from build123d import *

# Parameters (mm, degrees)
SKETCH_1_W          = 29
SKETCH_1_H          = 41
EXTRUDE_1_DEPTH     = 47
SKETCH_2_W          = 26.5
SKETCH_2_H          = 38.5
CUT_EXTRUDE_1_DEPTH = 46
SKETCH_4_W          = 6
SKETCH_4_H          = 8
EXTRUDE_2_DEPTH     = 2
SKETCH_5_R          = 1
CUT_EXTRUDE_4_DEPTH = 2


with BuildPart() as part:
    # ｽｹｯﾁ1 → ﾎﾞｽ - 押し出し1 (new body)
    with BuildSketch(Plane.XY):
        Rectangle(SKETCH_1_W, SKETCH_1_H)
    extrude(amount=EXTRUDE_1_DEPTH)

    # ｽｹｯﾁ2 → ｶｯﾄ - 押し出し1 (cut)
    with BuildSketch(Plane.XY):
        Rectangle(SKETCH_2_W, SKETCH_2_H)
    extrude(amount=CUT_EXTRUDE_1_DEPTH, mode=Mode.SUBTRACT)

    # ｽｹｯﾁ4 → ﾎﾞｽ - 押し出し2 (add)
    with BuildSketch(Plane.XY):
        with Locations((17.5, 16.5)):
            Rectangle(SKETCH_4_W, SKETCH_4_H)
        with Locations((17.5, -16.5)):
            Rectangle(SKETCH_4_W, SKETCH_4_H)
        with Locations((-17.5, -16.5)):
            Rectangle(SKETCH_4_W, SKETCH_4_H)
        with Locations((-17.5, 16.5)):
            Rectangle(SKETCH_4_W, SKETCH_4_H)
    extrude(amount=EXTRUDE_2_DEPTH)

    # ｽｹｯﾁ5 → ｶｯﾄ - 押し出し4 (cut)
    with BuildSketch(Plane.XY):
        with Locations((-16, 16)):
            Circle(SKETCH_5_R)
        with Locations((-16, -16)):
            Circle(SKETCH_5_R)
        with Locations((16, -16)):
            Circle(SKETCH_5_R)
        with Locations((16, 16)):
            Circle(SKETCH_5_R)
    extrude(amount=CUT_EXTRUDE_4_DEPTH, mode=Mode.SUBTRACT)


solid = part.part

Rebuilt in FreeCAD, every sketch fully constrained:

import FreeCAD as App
import Part
import Sketcher
Q = App.Units.Quantity


def add_polygon(sketch, points):
    """Adds a closed chain of lines whose ends are joined by coincident constraints."""
    first, n = sketch.GeometryCount, len(points)
    for a, b in zip(points, points[1:] + points[:1]):
        sketch.addGeometry(Part.LineSegment(App.Vector(*a, 0), App.Vector(*b, 0)), False)
    for i in range(n):
        sketch.addConstraint(Sketcher.Constraint("Coincident", first + i, 2, first + (i + 1) % n, 1))

doc = App.newDocument("Part")
body = doc.addObject("PartDesign::Body", "Body")

sketch1 = body.newObject("Sketcher::SketchObject", "Sketch")
sketch1.AttachmentSupport = (doc.getObject("XY_Plane"), [""])
sketch1.MapMode = "FlatFace"
add_polygon(sketch1, [(-14, 20), (-14, -20), (14, -20), (14, 20)])
sketch1.addConstraint(Sketcher.Constraint("Vertical", 0))
sketch1.addConstraint(Sketcher.Constraint("Horizontal", 1))
sketch1.addConstraint(Sketcher.Constraint("Vertical", 2))
sketch1.addConstraint(Sketcher.Constraint("Horizontal", 3))
sketch1.addConstraint(Sketcher.Constraint("Symmetric", 0, 2, 2, 2, -1, 1))
sketch1.addConstraint(Sketcher.Constraint("DistanceX", 1, 1, 1, 2, Q("29 mm")))
sketch1.addConstraint(Sketcher.Constraint("DistanceY", 0, 2, 0, 1, Q("41 mm")))
pad1 = body.newObject("PartDesign::Pad", "Pad")
pad1.Profile = sketch1
pad1.Length = 47

sketch2 = body.newObject("Sketcher::SketchObject", "Sketch001")
sketch2.AttachmentSupport = (doc.getObject("XY_Plane"), [""])
sketch2.MapMode = "FlatFace"
add_polygon(sketch2, [(-13, 19), (-13, -19), (13, -19), (13, 19)])
sketch2.addConstraint(Sketcher.Constraint("Vertical", 0))
sketch2.addConstraint(Sketcher.Constraint("Horizontal", 1))
sketch2.addConstraint(Sketcher.Constraint("Vertical", 2))
sketch2.addConstraint(Sketcher.Constraint("Horizontal", 3))
sketch2.addConstraint(Sketcher.Constraint("Symmetric", 0, 2, 2, 2, -1, 1))
sketch2.addConstraint(Sketcher.Constraint("DistanceX", 1, 1, 1, 2, Q("26.5 mm")))
sketch2.addConstraint(Sketcher.Constraint("DistanceY", 0, 2, 0, 1, Q("38.5 mm")))
pocket1 = body.newObject("PartDesign::Pocket", "Pocket")
pocket1.Profile = sketch2
pocket1.Length = 46
pocket1.Reversed = True

sketch3 = body.newObject("Sketcher::SketchObject", "Sketch002")
sketch3.AttachmentSupport = (doc.getObject("XY_Plane"), [""])
sketch3.MapMode = "FlatFace"
add_polygon(sketch3, [(14, 20), (14, 12), (20, 12), (20, 20)])
add_polygon(sketch3, [(14, -12), (14, -20), (20, -20), (20, -12)])
add_polygon(sketch3, [(-20, -12), (-20, -20), (-14, -20), (-14, -12)])
add_polygon(sketch3, [(-20, 20), (-20, 12), (-14, 12), (-14, 20)])
sketch3.addConstraint(Sketcher.Constraint("Vertical", 0))
sketch3.addConstraint(Sketcher.Constraint("Horizontal", 1))
sketch3.addConstraint(Sketcher.Constraint("Vertical", 2))
sketch3.addConstraint(Sketcher.Constraint("Horizontal", 3))
sketch3.addConstraint(Sketcher.Constraint("Vertical", 4))
sketch3.addConstraint(Sketcher.Constraint("Horizontal", 5))
sketch3.addConstraint(Sketcher.Constraint("Vertical", 6))
sketch3.addConstraint(Sketcher.Constraint("Horizontal", 7))
sketch3.addConstraint(Sketcher.Constraint("Vertical", 8))
sketch3.addConstraint(Sketcher.Constraint("Horizontal", 9))
sketch3.addConstraint(Sketcher.Constraint("Vertical", 10))
sketch3.addConstraint(Sketcher.Constraint("Horizontal", 11))
sketch3.addConstraint(Sketcher.Constraint("Vertical", 12))
sketch3.addConstraint(Sketcher.Constraint("Horizontal", 13))
sketch3.addConstraint(Sketcher.Constraint("Vertical", 14))
sketch3.addConstraint(Sketcher.Constraint("Horizontal", 15))
sketch3.addConstraint(Sketcher.Constraint("Symmetric", 2, 2, 8, 2, -1, 1))
sketch3.addConstraint(Sketcher.Constraint("Symmetric", 0, 2, 10, 2, -1, 1))
sketch3.addConstraint(Sketcher.Constraint("Symmetric", 6, 2, 12, 2, -1, 1))
sketch3.addConstraint(Sketcher.Constraint("Symmetric", 4, 2, 14, 2, -1, 1))
sketch3.addConstraint(Sketcher.Constraint("Symmetric", 5, 2, 8, 2, -2))
sketch3.addConstraint(Sketcher.Constraint("Symmetric", 7, 2, 10, 2, -2))
sketch3.addConstraint(Sketcher.Constraint("DistanceX", 1, 1, 1, 2, Q("6 mm")))
sketch3.addConstraint(Sketcher.Constraint("DistanceY", 0, 2, 0, 1, Q("8 mm")))
sketch3.addConstraint(Sketcher.Constraint("DistanceY", 4, 2, 0, 2, Q("33 mm")))
sketch3.addConstraint(Sketcher.Constraint("DistanceX", 8, 2, 4, 2, Q("35 mm")))
pad2 = body.newObject("PartDesign::Pad", "Pad001")
pad2.Profile = sketch3
pad2.Length = 2

sketch4 = body.newObject("Sketcher::SketchObject", "Sketch003")
sketch4.AttachmentSupport = (doc.getObject("XY_Plane"), [""])
sketch4.MapMode = "FlatFace"
sketch4.addGeometry(Part.Circle(App.Vector(-16, 16, 0), App.Vector(0, 0, 1), 1), False)
sketch4.addGeometry(Part.Circle(App.Vector(-16, -16, 0), App.Vector(0, 0, 1), 1), False)
sketch4.addGeometry(Part.Circle(App.Vector(16, -16, 0), App.Vector(0, 0, 1), 1), False)
sketch4.addGeometry(Part.Circle(App.Vector(16, 16, 0), App.Vector(0, 0, 1), 1), False)
sketch4.addConstraint(Sketcher.Constraint("Equal", 0, 1))
sketch4.addConstraint(Sketcher.Constraint("Equal", 1, 2))
sketch4.addConstraint(Sketcher.Constraint("Equal", 2, 3))
sketch4.addConstraint(Sketcher.Constraint("Symmetric", 0, 3, 2, 3, -1, 1))
sketch4.addConstraint(Sketcher.Constraint("Symmetric", 1, 3, 3, 3, -1, 1))
sketch4.addConstraint(Sketcher.Constraint("Symmetric", 1, 3, 2, 3, -2))
sketch4.addConstraint(Sketcher.Constraint("Diameter", 0, Q("2 mm")))
sketch4.addConstraint(Sketcher.Constraint("DistanceX", 0, 3, -1, 1, Q("16 mm")))
sketch4.addConstraint(Sketcher.Constraint("DistanceY", -1, 1, 0, 3, Q("16 mm")))
pocket2 = body.newObject("PartDesign::Pocket", "Pocket001")
pocket2.Profile = sketch4
pocket2.Length = 2
pocket2.Reversed = True

doc.recompute()
